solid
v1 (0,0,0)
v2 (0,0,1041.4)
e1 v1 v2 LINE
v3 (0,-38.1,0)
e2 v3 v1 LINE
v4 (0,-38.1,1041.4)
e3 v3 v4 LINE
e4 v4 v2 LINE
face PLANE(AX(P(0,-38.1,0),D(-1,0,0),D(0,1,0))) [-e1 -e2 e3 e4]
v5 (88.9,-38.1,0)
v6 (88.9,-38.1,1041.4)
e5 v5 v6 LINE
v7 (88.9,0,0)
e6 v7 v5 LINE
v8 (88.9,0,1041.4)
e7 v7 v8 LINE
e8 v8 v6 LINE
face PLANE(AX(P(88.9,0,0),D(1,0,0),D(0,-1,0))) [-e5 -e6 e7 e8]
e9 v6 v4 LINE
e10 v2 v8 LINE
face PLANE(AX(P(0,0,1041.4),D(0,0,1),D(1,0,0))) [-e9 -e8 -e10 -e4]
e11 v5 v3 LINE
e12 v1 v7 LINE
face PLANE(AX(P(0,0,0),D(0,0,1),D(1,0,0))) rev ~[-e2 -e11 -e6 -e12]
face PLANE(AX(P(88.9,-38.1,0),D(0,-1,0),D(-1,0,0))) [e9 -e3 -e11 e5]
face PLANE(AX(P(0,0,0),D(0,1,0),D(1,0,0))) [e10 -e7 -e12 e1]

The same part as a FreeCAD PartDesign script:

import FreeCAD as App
import Part
import Sketcher
from FreeCAD import Vector
Q = App.Units.Quantity


def add_polygon(sketch, points):
    """Adds a closed chain of lines whose ends are joined by coincident constraints."""
    first, n = sketch.GeometryCount, len(points)
    for a, b in zip(points, points[1:] + points[:1]):
        sketch.addGeometry(Part.LineSegment(App.Vector(*a, 0), App.Vector(*b, 0)), False)
    for i in range(n):
        sketch.addConstraint(Sketcher.Constraint("Coincident", first + i, 2, first + (i + 1) % n, 1))

doc = App.newDocument("Part")
body = doc.addObject("PartDesign::Body", "Body")

# Sketch on XY plane
sketch1 = doc.addObject("Sketcher::SketchObject", "Sketch")
body.addObject(sketch1)
sketch1.AttachmentSupport = (doc.XY_Plane, [""])
sketch1.MapMode = "FlatFace"
add_polygon(sketch1, [(88.9, 0), (0, 0), (0, -38.1), (88.9, -38.1)])  # lines 0-3
sketch1.addConstraint([
    Sketcher.Constraint("Horizontal", 0),
    Sketcher.Constraint("Vertical", 1),
    Sketcher.Constraint("Horizontal", 2),
    Sketcher.Constraint("Vertical", 3),
    Sketcher.Constraint("Coincident", 0, 2, -1, 1),
    Sketcher.Constraint("DistanceX", 0, 2, 0, 1, Q("3.5 in")),
    Sketcher.Constraint("DistanceY", 1, 2, 1, 1, Q("1.5 in")),
])
pad1 = doc.addObject("PartDesign::Pad", "Pad")
body.addObject(pad1)
pad1.Profile = sketch1
pad1.Length = Q("41 in")

doc.recompute()
